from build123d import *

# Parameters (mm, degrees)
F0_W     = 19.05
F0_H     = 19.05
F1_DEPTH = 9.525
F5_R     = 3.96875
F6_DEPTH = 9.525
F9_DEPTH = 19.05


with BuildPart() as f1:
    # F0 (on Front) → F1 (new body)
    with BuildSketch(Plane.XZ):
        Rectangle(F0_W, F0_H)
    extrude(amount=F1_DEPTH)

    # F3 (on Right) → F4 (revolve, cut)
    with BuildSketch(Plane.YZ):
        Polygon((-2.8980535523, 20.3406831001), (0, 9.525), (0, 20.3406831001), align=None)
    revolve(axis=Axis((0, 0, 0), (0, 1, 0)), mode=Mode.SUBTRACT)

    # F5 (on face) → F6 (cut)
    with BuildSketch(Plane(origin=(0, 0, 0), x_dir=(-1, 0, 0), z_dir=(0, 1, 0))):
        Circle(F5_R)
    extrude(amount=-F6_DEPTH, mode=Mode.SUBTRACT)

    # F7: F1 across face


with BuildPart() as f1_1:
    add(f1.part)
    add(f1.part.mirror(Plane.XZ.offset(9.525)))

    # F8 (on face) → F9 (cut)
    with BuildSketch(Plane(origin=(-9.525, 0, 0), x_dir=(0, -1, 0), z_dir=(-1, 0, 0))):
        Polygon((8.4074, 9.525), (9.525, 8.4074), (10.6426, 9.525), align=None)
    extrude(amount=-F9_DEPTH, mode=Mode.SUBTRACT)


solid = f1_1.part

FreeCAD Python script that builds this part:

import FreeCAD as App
import Part
import Sketcher
Q = App.Units.Quantity


def add_polygon(sketch, points):
    """Adds a closed chain of lines whose ends are joined by coincident constraints."""
    first, n = sketch.GeometryCount, len(points)
    for a, b in zip(points, points[1:] + points[:1]):
        sketch.addGeometry(Part.LineSegment(App.Vector(*a, 0), App.Vector(*b, 0)), False)
    for i in range(n):
        sketch.addConstraint(Sketcher.Constraint("Coincident", first + i, 2, first + (i + 1) % n, 1))

doc = App.newDocument("Part")
body = doc.addObject("PartDesign::Body", "Body")

# Sketch on XZ plane
sketch1 = body.newObject("Sketcher::SketchObject", "Sketch")
sketch1.AttachmentSupport = (doc.getObject("XZ_Plane"), [""])
sketch1.MapMode = "FlatFace"
add_polygon(sketch1, [(-9.525, 9.525), (-9.525, -9.525), (9.525, -9.525), (9.525, 9.525)])  # lines 0-3
sketch1.addConstraint(Sketcher.Constraint("Vertical", 0))
sketch1.addConstraint(Sketcher.Constraint("Horizontal", 1))
sketch1.addConstraint(Sketcher.Constraint("Vertical", 2))
sketch1.addConstraint(Sketcher.Constraint("Horizontal", 3))
sketch1.addConstraint(Sketcher.Constraint("Symmetric", 0, 2, 2, 2, -1, 1))
sketch1.addConstraint(Sketcher.Constraint("Equal", 3, 0))
sketch1.addConstraint(Sketcher.Constraint("DistanceX", 1, 1, 1, 2, Q("0.75 in")))
pad1 = body.newObject("PartDesign::Pad", "Pad")
pad1.Profile = sketch1
pad1.Length = Q("0.375 in")

# Sketch on YZ plane
sketch2 = body.newObject("Sketcher::SketchObject", "Sketch001")
sketch2.AttachmentSupport = (doc.getObject("YZ_Plane"), [""])
sketch2.MapMode = "FlatFace"
add_polygon(sketch2, [(-2.898054, 20.340683), (0, 9.525), (0, 20.340683)])  # lines 0-2
sketch2.addConstraint(Sketcher.Constraint("Vertical", 1))
sketch2.addConstraint(Sketcher.Constraint("Horizontal", 2))
sketch2.addConstraint(Sketcher.Constraint("PointOnObject", 0, 2, -2))
sketch2.addConstraint(Sketcher.Constraint("Angle", 0, Q("-75 deg")))
sketch2.addConstraint(Sketcher.Constraint("DistanceY", -1, 1, 0, 2, Q("0.375 in")))
sketch2.addConstraint(Sketcher.Constraint("Distance", 0, 11.197219))
groove = body.newObject("PartDesign::Groove", "Groove")
groove.Profile = sketch2
groove.ReferenceAxis = (sketch2, ["H_Axis"])
groove.Angle = 360

# Sketch on XZ plane
sketch3 = body.newObject("Sketcher::SketchObject", "Sketch002")
sketch3.AttachmentSupport = (doc.getObject("XZ_Plane"), [""])
sketch3.MapMode = "FlatFace"
sketch3.addGeometry(Part.Circle(App.Vector(0, 0, 0), App.Vector(0, 0, 1), 3.96875), False)
sketch3.addConstraint(Sketcher.Constraint("Coincident", 0, 3, -1, 1))
sketch3.addConstraint(Sketcher.Constraint("Diameter", 0, Q("0.3125 in")))
pocket1 = body.newObject("PartDesign::Pocket", "Pocket")
pocket1.Profile = sketch3
pocket1.Length = Q("0.375 in")
pocket1.Reversed = True
body2 = doc.addObject("PartDesign::Body", "Body001")
doc.recompute()

body2.BaseFeature = body
doc.recompute()

mirroring = doc.addObject("Part::Mirroring", "Mirroring")
mirroring.Source = body
mirroring.Base = App.Vector(0, -9.525, 0)
mirroring.Normal = App.Vector(0, -1, 0)
body3 = doc.addObject("PartDesign::Body", "Body002")
body3.BaseFeature = mirroring
boolean = body2.newObject("PartDesign::Boolean", "Boolean")
boolean.Type = "Fuse"
boolean.addObjects([body3])
doc.recompute()

# Sketch on YZ plane
sketch4 = body2.newObject("Sketcher::SketchObject", "Sketch003")
sketch4.AttachmentSupport = (doc.getObject("YZ_Plane001"), [""])
sketch4.MapMode = "FlatFace"
sketch4.AttachmentOffset = App.Placement(App.Vector(0, 0, -0.375 * 25.4), App.Rotation())
add_polygon(sketch4, [(-8.4074, 9.525), (-9.525, 8.4074), (-10.6426, 9.525)])  # lines 0-2
sketch4.addConstraint(Sketcher.Constraint("Horizontal", 2))
sketch4.addConstraint(Sketcher.Constraint("Perpendicular", 0, 1))
sketch4.addConstraint(Sketcher.Constraint("Equal", 0, 1))
sketch4.addConstraint(Sketcher.Constraint("DistanceX", 2, 1, 2, 2, Q("0.088 in")))
sketch4.addConstraint(Sketcher.Constraint("DistanceX", 0, 2, -1, 1, Q("0.375 in")))
sketch4.addConstraint(Sketcher.Constraint("DistanceY", -1, 1, 0, 2, Q("0.331 in")))
pocket2 = body2.newObject("PartDesign::Pocket", "Pocket001")
pocket2.Profile = sketch4
pocket2.Length = Q("0.75 in")
pocket2.Reversed = True
mirroring.Visibility = False

doc.recompute()
